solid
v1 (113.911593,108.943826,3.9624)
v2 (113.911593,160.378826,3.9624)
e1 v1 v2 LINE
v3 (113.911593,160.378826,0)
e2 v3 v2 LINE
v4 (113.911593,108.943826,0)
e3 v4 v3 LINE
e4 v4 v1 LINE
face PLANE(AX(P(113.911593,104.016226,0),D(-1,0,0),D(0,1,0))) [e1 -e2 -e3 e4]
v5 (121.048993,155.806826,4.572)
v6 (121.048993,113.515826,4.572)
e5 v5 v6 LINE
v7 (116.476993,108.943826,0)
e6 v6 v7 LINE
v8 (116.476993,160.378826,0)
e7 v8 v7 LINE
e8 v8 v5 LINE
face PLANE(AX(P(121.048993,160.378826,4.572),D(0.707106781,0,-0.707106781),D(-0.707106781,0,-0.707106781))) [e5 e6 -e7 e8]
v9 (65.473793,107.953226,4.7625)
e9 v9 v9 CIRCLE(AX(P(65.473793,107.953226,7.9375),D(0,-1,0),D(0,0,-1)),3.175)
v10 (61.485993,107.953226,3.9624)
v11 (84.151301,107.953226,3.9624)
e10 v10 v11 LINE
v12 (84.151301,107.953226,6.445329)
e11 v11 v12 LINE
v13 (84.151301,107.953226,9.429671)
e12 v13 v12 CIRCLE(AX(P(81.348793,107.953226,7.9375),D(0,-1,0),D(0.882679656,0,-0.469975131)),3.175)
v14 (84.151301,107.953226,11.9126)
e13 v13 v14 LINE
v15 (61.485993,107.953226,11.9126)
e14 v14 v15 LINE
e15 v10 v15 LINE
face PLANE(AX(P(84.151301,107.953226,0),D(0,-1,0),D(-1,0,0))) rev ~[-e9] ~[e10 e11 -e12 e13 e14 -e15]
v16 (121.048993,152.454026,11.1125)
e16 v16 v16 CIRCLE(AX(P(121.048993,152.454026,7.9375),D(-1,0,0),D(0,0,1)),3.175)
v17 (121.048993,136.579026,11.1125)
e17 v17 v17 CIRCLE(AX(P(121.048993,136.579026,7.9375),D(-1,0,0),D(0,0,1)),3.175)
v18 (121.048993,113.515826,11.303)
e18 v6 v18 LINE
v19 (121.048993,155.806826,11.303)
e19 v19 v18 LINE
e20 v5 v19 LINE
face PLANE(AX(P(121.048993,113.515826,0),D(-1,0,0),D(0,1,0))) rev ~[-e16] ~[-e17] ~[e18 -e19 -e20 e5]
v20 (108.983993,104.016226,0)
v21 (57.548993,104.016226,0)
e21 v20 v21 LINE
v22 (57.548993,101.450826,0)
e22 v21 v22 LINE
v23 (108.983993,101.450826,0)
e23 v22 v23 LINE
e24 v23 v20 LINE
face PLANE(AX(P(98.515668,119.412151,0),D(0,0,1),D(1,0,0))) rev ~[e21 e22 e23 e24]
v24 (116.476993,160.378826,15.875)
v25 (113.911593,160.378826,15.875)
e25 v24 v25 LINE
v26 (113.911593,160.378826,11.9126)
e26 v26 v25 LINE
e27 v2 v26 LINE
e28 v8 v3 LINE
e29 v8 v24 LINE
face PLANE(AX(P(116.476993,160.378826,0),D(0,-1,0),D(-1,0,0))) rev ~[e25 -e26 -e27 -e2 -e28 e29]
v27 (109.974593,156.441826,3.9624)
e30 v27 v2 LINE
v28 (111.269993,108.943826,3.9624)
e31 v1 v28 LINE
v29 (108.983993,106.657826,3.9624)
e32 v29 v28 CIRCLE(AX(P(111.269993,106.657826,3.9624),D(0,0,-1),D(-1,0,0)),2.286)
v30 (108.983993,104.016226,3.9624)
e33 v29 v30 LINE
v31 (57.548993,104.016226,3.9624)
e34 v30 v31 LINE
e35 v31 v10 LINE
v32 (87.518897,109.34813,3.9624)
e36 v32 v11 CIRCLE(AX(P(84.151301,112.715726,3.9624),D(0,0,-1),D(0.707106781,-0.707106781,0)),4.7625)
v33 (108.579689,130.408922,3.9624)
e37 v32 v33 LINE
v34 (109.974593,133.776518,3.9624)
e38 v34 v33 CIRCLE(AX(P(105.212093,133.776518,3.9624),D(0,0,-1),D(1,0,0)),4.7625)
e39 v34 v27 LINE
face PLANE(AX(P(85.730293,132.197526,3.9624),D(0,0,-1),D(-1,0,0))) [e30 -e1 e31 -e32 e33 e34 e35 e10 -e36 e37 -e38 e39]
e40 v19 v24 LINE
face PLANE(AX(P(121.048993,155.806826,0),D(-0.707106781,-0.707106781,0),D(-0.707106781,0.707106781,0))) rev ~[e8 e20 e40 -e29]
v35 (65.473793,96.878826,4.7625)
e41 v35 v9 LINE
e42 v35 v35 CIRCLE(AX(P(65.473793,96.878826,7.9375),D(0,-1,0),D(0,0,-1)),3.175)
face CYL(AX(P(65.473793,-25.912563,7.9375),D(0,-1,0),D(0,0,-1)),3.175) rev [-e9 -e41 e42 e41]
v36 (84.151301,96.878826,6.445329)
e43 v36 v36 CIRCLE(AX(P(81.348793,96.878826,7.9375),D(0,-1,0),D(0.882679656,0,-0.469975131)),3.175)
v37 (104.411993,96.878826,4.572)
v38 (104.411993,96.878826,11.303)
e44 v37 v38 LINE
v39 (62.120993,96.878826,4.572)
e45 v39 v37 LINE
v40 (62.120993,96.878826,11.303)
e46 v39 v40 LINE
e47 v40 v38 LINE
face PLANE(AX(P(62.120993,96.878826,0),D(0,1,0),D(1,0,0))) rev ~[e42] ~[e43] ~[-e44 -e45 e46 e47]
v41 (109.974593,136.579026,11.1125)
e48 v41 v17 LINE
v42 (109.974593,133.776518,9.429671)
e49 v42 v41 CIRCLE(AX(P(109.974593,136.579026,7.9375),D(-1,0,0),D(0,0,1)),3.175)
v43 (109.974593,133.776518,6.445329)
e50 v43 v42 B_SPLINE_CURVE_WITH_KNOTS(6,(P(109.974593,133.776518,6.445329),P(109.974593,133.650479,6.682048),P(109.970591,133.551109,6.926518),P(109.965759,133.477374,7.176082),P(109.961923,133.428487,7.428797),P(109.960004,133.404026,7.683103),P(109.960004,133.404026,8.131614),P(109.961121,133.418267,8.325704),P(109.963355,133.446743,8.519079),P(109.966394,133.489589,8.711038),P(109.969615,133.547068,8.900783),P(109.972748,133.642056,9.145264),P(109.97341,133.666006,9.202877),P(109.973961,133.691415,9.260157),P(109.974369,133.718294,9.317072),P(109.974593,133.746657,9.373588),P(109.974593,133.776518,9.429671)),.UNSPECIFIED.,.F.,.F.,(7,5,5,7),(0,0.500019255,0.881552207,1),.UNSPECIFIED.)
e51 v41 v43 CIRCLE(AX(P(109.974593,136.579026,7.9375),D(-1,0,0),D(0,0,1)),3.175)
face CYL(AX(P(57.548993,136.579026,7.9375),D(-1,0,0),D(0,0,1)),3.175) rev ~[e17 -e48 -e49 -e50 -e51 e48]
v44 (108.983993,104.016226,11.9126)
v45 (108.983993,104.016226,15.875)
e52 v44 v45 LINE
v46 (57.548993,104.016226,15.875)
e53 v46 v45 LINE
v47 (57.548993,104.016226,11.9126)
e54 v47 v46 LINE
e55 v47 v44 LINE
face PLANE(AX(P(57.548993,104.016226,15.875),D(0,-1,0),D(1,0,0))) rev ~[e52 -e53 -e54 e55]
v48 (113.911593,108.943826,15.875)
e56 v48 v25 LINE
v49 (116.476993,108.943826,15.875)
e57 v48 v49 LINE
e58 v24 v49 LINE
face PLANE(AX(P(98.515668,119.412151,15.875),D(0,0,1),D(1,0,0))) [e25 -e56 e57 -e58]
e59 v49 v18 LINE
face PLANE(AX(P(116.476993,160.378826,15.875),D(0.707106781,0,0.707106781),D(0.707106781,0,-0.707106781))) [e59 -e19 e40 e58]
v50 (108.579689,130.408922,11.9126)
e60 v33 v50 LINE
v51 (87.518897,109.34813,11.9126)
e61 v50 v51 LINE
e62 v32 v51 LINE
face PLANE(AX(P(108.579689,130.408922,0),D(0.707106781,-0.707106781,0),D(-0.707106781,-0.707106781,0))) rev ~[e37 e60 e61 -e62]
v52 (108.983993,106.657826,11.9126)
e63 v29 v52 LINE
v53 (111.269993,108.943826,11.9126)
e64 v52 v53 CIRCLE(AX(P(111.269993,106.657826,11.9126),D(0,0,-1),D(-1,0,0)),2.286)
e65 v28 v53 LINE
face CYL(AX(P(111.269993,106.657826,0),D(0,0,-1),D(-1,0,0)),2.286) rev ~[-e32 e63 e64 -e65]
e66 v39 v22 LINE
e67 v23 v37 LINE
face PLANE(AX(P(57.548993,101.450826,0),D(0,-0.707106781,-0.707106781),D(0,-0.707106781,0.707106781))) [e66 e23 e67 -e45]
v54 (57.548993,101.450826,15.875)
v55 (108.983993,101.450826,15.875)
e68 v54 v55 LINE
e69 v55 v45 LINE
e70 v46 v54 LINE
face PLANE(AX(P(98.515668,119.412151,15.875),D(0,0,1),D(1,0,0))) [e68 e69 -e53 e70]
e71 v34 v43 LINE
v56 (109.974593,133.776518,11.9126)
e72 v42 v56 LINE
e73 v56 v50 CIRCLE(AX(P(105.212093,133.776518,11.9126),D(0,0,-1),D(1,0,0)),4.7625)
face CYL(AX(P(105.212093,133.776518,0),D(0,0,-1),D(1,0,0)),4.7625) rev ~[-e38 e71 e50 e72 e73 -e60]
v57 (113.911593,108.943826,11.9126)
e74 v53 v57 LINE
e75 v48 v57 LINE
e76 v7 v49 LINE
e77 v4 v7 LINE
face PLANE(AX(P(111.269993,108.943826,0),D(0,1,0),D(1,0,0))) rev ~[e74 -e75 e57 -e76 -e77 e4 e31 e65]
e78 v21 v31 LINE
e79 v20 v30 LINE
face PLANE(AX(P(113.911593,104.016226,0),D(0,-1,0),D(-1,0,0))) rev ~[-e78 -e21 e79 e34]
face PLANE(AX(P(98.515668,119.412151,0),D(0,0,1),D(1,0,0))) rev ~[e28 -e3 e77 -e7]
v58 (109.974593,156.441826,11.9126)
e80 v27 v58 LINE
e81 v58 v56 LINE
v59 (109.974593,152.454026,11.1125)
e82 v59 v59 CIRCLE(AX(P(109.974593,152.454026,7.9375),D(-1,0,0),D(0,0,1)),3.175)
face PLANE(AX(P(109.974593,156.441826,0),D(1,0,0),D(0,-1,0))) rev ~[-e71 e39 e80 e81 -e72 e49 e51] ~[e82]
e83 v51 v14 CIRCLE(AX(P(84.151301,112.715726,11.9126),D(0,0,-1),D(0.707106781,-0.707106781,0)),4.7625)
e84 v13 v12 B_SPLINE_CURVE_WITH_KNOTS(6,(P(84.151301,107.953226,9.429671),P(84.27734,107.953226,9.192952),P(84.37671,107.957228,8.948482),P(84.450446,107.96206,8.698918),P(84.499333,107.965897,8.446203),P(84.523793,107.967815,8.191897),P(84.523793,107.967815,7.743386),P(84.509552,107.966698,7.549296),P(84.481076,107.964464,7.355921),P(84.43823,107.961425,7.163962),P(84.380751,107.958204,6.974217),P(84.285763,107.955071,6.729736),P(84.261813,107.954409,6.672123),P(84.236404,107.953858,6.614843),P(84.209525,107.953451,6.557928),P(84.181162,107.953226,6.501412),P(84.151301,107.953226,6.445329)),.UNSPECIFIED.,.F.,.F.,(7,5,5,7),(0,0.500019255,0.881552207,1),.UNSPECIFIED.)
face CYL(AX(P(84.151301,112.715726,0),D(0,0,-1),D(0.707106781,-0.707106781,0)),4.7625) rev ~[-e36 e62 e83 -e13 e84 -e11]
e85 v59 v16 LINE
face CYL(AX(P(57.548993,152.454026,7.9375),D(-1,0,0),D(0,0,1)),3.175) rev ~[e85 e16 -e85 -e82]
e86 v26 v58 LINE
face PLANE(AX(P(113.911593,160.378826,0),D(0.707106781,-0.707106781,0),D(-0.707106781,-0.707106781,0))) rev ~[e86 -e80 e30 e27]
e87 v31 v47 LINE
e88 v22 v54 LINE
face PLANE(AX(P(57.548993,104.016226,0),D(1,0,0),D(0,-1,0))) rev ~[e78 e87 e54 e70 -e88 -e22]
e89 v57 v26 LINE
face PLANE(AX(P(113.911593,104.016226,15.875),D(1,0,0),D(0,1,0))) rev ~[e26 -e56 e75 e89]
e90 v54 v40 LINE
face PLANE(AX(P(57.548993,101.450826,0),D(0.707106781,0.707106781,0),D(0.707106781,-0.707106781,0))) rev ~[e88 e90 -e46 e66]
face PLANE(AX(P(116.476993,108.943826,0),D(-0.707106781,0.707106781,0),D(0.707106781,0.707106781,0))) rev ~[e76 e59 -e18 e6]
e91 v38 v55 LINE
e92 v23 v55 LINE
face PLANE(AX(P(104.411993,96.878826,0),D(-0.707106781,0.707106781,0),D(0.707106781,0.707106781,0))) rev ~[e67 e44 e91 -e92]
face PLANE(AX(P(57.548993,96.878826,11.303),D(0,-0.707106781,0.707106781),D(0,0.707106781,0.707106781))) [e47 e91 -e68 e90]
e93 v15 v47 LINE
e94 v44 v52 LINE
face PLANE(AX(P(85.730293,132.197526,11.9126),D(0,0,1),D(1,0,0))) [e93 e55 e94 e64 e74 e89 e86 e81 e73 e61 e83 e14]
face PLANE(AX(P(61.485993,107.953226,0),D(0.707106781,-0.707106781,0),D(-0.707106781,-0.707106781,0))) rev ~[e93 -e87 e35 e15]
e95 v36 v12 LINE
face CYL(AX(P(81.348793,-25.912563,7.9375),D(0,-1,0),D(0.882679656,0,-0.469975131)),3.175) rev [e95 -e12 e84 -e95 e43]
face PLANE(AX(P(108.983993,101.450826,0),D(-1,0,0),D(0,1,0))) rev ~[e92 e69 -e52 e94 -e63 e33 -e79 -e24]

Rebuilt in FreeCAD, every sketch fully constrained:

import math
import FreeCAD as App
import Part
import Sketcher

V = App.Vector
Q = App.Units.Quantity


def add_polygon(sketch, points):
    """Adds a closed chain of lines whose ends are joined by coincident constraints."""
    first, n = sketch.GeometryCount, len(points)
    for a, b in zip(points, points[1:] + points[:1]):
        sketch.addGeometry(Part.LineSegment(App.Vector(*a, 0), App.Vector(*b, 0)), False)
    for i in range(n):
        sketch.addConstraint(Sketcher.Constraint("Coincident", first + i, 2, first + (i + 1) % n, 1))

doc = App.newDocument("Part")
body = doc.addObject("PartDesign::Body", "Body")

# Sketch on XY plane
sketch1 = body.newObject("Sketcher::SketchObject", "Sketch")
sketch1.AttachmentSupport = (doc.getObject("XY_Plane"), [""])
sketch1.MapMode = "FlatFace"
sketch1.addGeometry([
    Part.LineSegment(V(108.6, 130.4, 0), V(87.5, 109.3, 0)),  # 0
    Part.ArcOfCircle(Part.Circle(V(84.2, 112.7, 0), V(0, 0, 1), 4.8), math.radians(-90), math.radians(-45)),  # 1
    Part.LineSegment(V(84.2, 108, 0), V(61.5, 108, 0)),  # 2
    Part.LineSegment(V(61.5, 108, 0), V(57.5, 104, 0)),  # 3
    Part.LineSegment(V(57.5, 104, 0), V(57.5, 101.5, 0)),  # 4
    Part.LineSegment(V(57.5, 101.5, 0), V(62.1, 96.9, 0)),  # 5
    Part.LineSegment(V(62.1, 96.9, 0), V(104.4, 96.9, 0)),  # 6
    Part.LineSegment(V(104.4, 96.9, 0), V(109, 101.5, 0)),  # 7
    Part.LineSegment(V(109, 101.5, 0), V(109, 106.7, 0)),  # 8
    Part.ArcOfCircle(Part.Circle(V(111.3, 106.7, 0), V(0, 0, 1), 2.3), math.radians(90), math.radians(180)),  # 9
    Part.LineSegment(V(111.3, 108.9, 0), V(116.5, 108.9, 0)),  # 10
    Part.LineSegment(V(116.5, 108.9, 0), V(121, 113.5, 0)),  # 11
    Part.LineSegment(V(121, 113.5, 0), V(121, 155.8, 0)),  # 12
    Part.LineSegment(V(121, 155.8, 0), V(116.5, 160.4, 0)),  # 13
    Part.LineSegment(V(116.5, 160.4, 0), V(113.9, 160.4, 0)),  # 14
    Part.LineSegment(V(113.9, 160.4, 0), V(110, 156.4, 0)),  # 15
    Part.LineSegment(V(110, 156.4, 0), V(110, 133.8, 0)),  # 16
    Part.ArcOfCircle(Part.Circle(V(105.2, 133.8, 0), V(0, 0, 1), 4.8), math.radians(-45), math.radians(0)),  # 17
], False)
sketch1.addConstraint([
    Sketcher.Constraint("Tangent", 0, 2, 1, 2),
    Sketcher.Constraint("Tangent", 1, 1, 2, 1),
    Sketcher.Constraint("Coincident", 2, 2, 3, 1),
    Sketcher.Constraint("Coincident", 3, 2, 4, 1),
    Sketcher.Constraint("Coincident", 4, 2, 5, 1),
    Sketcher.Constraint("Coincident", 5, 2, 6, 1),
    Sketcher.Constraint("Coincident", 6, 2, 7, 1),
    Sketcher.Constraint("Coincident", 7, 2, 8, 1),
    Sketcher.Constraint("Tangent", 8, 2, 9, 2),
    Sketcher.Constraint("Tangent", 9, 1, 10, 1),
    Sketcher.Constraint("Coincident", 10, 2, 11, 1),
    Sketcher.Constraint("Coincident", 11, 2, 12, 1),
    Sketcher.Constraint("Coincident", 12, 2, 13, 1),
    Sketcher.Constraint("Coincident", 13, 2, 14, 1),
    Sketcher.Constraint("Coincident", 14, 2, 15, 1),
    Sketcher.Constraint("Coincident", 15, 2, 16, 1),
    Sketcher.Constraint("Tangent", 16, 2, 17, 2),
    Sketcher.Constraint("Tangent", 17, 1, 0, 1),
    Sketcher.Constraint("Horizontal", 2),
    Sketcher.Constraint("Vertical", 4),
    Sketcher.Constraint("Horizontal", 6),
    Sketcher.Constraint("Vertical", 8),
    Sketcher.Constraint("Horizontal", 10),
    Sketcher.Constraint("Vertical", 12),
    Sketcher.Constraint("Horizontal", 14),
    Sketcher.Constraint("Vertical", 16),
    Sketcher.Constraint("Equal", 1, 17),
    Sketcher.Constraint("Parallel", 0, 3),
    Sketcher.Constraint("Perpendicular", 3, 5),
    Sketcher.Constraint("Perpendicular", 5, 7),
    Sketcher.Constraint("Parallel", 7, 11),
    Sketcher.Constraint("Perpendicular", 11, 13),
    Sketcher.Constraint("Perpendicular", 13, 15),
    Sketcher.Constraint("Horizontal", 4, 2, 7, 2),
    Sketcher.Constraint("Vertical", 10, 2, 13, 2),
    Sketcher.Constraint("Equal", 14, 4),
    Sketcher.Constraint("Equal", 10, 8),
    Sketcher.Constraint("Equal", 6, 12),
    Sketcher.Constraint("Equal", 2, 16),
    Sketcher.Constraint("Equal", 5, 7),
    Sketcher.Constraint("Equal", 3, 15),
    Sketcher.Constraint("Radius", 9, Q("0.09 in")),
    Sketcher.Constraint("Radius", 1, Q("0.1875 in")),
    Sketcher.Constraint("DistanceX", 6, 1, 6, 2, Q("1.665 in")),
    Sketcher.Constraint("DistanceX", 10, 1, 10, 2, Q("0.205 in")),
    Sketcher.Constraint("DistanceX", 14, 2, 14, 1, Q("0.101 in")),
    Sketcher.Constraint("DistanceX", 2, 2, 9, 3, Q("1.96 in")),
    Sketcher.Constraint("DistanceX", 4, 2, 5, 2, Q("0.18 in")),
    Sketcher.Constraint("DistanceX", -1, 1, 1, 3, 84.151301),
    Sketcher.Constraint("DistanceX", 2, 2, 2, 1, 22.665308),
    Sketcher.Constraint("DistanceY", -1, 1, 17, 3, 133.776518),
])
pad1 = body.newObject("PartDesign::Pad", "Pad")
pad1.Profile = sketch1
pad1.Length = Q("0.625 in")

# Sketch on XY plane
sketch2 = body.newObject("Sketcher::SketchObject", "Sketch001")
sketch2.AttachmentSupport = (doc.getObject("XY_Plane"), [""])
sketch2.MapMode = "FlatFace"
sketch2.AttachmentOffset = App.Placement(V(0, 0, 0.625 * 25.4), App.Rotation())
add_polygon(sketch2, [(58, 160), (58, 104), (114, 104), (114, 160)])  # lines 0-3
sketch2.addConstraint([
    Sketcher.Constraint("Vertical", 0),
    Sketcher.Constraint("Horizontal", 1),
    Sketcher.Constraint("Vertical", 2),
    Sketcher.Constraint("Horizontal", 3),
    Sketcher.Constraint("Equal", 3, 0),
    Sketcher.Constraint("DistanceX", 1, 1, 1, 2, Q("2.219 in")),
    Sketcher.Constraint("DistanceX", -1, 1, 0, 2, 57.548993),
    Sketcher.Constraint("DistanceY", -1, 1, 0, 2, 104.016226),
])
pocket1 = body.newObject("PartDesign::Pocket", "Pocket")
pocket1.Profile = sketch2
pocket1.Length = Q("0.156 in")

# Sketch on XY plane
sketch3 = body.newObject("Sketcher::SketchObject", "Sketch002")
sketch3.AttachmentSupport = (doc.getObject("XY_Plane"), [""])
sketch3.MapMode = "FlatFace"
add_polygon(sketch3, [(114, 160), (114, 104), (58, 104), (58, 160)])  # lines 0-3
sketch3.addConstraint([
    Sketcher.Constraint("Vertical", 0),
    Sketcher.Constraint("Horizontal", 1),
    Sketcher.Constraint("Vertical", 2),
    Sketcher.Constraint("Horizontal", 3),
    Sketcher.Constraint("Equal", 3, 0),
    Sketcher.Constraint("DistanceX", 1, 2, 1, 1, Q("2.219 in")),
    Sketcher.Constraint("DistanceX", -1, 1, 0, 2, 113.911593),
    Sketcher.Constraint("DistanceY", -1, 1, 0, 2, 104.016226),
])
pocket2 = body.newObject("PartDesign::Pocket", "Pocket001")
pocket2.Profile = sketch3
pocket2.Length = Q("0.156 in")
pocket2.Reversed = True

# Sketch on YZ plane
sketch4 = body.newObject("Sketcher::SketchObject", "Sketch003")
sketch4.AttachmentSupport = (doc.getObject("YZ_Plane"), [""])
sketch4.MapMode = "FlatFace"
sketch4.AttachmentOffset = App.Placement(V(0, 0, 57.548993), App.Rotation())
add_polygon(sketch4, [(97, 5), (101, 0), (98, -4), (92, 9), (96, 20), (101, 16), (97, 11)])  # lines 0-6
sketch4.addConstraint([
    Sketcher.Constraint("Vertical", 6),
    Sketcher.Constraint("PointOnObject", 0, 2, -1),
    Sketcher.Constraint("Perpendicular", 0, 5),
    Sketcher.Constraint("Vertical", 0, 2, 4, 2),
    Sketcher.Constraint("Equal", 0, 5),
    Sketcher.Constraint("DistanceY", 6, 2, 6, 1, Q("0.265 in")),
    Sketcher.Constraint("DistanceY", -1, 1, 6, 2, Q("0.18 in")),
    Sketcher.Constraint("Distance", 1, 5.021518),
    Sketcher.Constraint("Distance", 4, 6.551291),
    Sketcher.Constraint("DistanceX", 2, 2, 0, 2, 9.13698),
    Sketcher.Constraint("DistanceY", 1, 2, 2, 2, 12.829718),
    Sketcher.Constraint("DistanceX", 2, 2, 3, 2, 3.826951),
    Sketcher.Constraint("DistanceY", 1, 2, 3, 2, 23.228771),
    Sketcher.Constraint("DistanceX", -1, 1, 0, 2, 101.450826),
])
pocket3 = body.newObject("PartDesign::Pocket", "Pocket002")
pocket3.Profile = sketch4
pocket3.Type = "ThroughAll"
pocket3.Reversed = True

# Sketch on XZ plane
sketch5 = body.newObject("Sketcher::SketchObject", "Sketch004")
sketch5.AttachmentSupport = (doc.getObject("XZ_Plane"), [""])
sketch5.MapMode = "FlatFace"
sketch5.AttachmentOffset = App.Placement(V(0, 0, -160.378826), App.Rotation())
add_polygon(sketch5, [(121, 11.3), (116.5, 15.9), (117.3, 18.5), (123.6, 16.2), (122.9, -1), (116.5, 0), (121, 4.6)])  # lines 0-6
sketch5.addConstraint([
    Sketcher.Constraint("Vertical", 6),
    Sketcher.Constraint("PointOnObject", 4, 2, -1),
    Sketcher.Constraint("Perpendicular", 0, 5),
    Sketcher.Constraint("Vertical", 0, 2, 4, 2),
    Sketcher.Constraint("Equal", 0, 5),
    Sketcher.Constraint("DistanceY", 6, 1, 6, 2, Q("0.265 in")),
    Sketcher.Constraint("DistanceY", -1, 1, 5, 2, Q("0.18 in")),
    Sketcher.Constraint("Distance", 3, 17.234098),
    Sketcher.Constraint("Distance", 1, 2.698918),
    Sketcher.Constraint("Distance", 2, 6.734778),
    Sketcher.Constraint("DistanceY", -1, 1, 1, 2, 18.459609),
    Sketcher.Constraint("DistanceX", -1, 1, 2, 2, 123.595758),
    Sketcher.Constraint("DistanceX", -1, 1, 3, 2, 122.851769),
    Sketcher.Constraint("DistanceX", 1, 2, 2, 2, 6.341621),
])
pocket4 = body.newObject("PartDesign::Pocket", "Pocket003")
pocket4.Profile = sketch5
pocket4.Type = "ThroughAll"
pocket4.Reversed = True

# Sketch on YZ plane
sketch6 = body.newObject("Sketcher::SketchObject", "Sketch005")
sketch6.AttachmentSupport = (doc.getObject("YZ_Plane"), [""])
sketch6.MapMode = "FlatFace"
sketch6.AttachmentOffset = App.Placement(V(0, 0, 57.548993), App.Rotation())
sketch6.addGeometry([
    Part.Circle(V(136.6, 7.9, 0), V(0, 0, 1), 3.2),
    Part.Circle(V(152.5, 7.9, 0), V(0, 0, 1), 3.2),
], False)
sketch6.addConstraint([
    Sketcher.Constraint("Equal", 0, 1),
    Sketcher.Constraint("Horizontal", 0, 3, 1, 3),
    Sketcher.Constraint("Diameter", 0, Q("0.25 in")),
    Sketcher.Constraint("DistanceY", -1, 1, 0, 3, Q("0.3125 in")),
    Sketcher.Constraint("DistanceX", 0, 3, 1, 3, Q("0.625 in")),
    Sketcher.Constraint("DistanceX", -1, 1, 0, 3, 136.579026),
])
pocket5 = body.newObject("PartDesign::Pocket", "Pocket004")
pocket5.Profile = sketch6
pocket5.Type = "ThroughAll"
pocket5.Reversed = True

# Sketch on XZ plane
sketch7 = body.newObject("Sketcher::SketchObject", "Sketch006")
sketch7.AttachmentSupport = (doc.getObject("XZ_Plane"), [""])
sketch7.MapMode = "FlatFace"
sketch7.AttachmentOffset = App.Placement(V(0, 0, -107.953226), App.Rotation())
sketch7.addGeometry([
    Part.Circle(V(65.5, 7.9, 0), V(0, 0, 1), 3.2),
    Part.Circle(V(81.3, 7.9, 0), V(0, 0, 1), 3.2),
], False)
sketch7.addConstraint([
    Sketcher.Constraint("Equal", 0, 1),
    Sketcher.Constraint("Horizontal", 0, 3, 1, 3),
    Sketcher.Constraint("Diameter", 0, Q("0.25 in")),
    Sketcher.Constraint("DistanceY", -1, 1, 0, 3, Q("0.3125 in")),
    Sketcher.Constraint("DistanceX", 0, 3, 1, 3, Q("0.625 in")),
    Sketcher.Constraint("DistanceX", -1, 1, 0, 3, 65.473793),
])
pocket6 = body.newObject("PartDesign::Pocket", "Pocket005")
pocket6.Profile = sketch7
pocket6.Type = "ThroughAll"
pocket6.Midplane = True

doc.recompute()
